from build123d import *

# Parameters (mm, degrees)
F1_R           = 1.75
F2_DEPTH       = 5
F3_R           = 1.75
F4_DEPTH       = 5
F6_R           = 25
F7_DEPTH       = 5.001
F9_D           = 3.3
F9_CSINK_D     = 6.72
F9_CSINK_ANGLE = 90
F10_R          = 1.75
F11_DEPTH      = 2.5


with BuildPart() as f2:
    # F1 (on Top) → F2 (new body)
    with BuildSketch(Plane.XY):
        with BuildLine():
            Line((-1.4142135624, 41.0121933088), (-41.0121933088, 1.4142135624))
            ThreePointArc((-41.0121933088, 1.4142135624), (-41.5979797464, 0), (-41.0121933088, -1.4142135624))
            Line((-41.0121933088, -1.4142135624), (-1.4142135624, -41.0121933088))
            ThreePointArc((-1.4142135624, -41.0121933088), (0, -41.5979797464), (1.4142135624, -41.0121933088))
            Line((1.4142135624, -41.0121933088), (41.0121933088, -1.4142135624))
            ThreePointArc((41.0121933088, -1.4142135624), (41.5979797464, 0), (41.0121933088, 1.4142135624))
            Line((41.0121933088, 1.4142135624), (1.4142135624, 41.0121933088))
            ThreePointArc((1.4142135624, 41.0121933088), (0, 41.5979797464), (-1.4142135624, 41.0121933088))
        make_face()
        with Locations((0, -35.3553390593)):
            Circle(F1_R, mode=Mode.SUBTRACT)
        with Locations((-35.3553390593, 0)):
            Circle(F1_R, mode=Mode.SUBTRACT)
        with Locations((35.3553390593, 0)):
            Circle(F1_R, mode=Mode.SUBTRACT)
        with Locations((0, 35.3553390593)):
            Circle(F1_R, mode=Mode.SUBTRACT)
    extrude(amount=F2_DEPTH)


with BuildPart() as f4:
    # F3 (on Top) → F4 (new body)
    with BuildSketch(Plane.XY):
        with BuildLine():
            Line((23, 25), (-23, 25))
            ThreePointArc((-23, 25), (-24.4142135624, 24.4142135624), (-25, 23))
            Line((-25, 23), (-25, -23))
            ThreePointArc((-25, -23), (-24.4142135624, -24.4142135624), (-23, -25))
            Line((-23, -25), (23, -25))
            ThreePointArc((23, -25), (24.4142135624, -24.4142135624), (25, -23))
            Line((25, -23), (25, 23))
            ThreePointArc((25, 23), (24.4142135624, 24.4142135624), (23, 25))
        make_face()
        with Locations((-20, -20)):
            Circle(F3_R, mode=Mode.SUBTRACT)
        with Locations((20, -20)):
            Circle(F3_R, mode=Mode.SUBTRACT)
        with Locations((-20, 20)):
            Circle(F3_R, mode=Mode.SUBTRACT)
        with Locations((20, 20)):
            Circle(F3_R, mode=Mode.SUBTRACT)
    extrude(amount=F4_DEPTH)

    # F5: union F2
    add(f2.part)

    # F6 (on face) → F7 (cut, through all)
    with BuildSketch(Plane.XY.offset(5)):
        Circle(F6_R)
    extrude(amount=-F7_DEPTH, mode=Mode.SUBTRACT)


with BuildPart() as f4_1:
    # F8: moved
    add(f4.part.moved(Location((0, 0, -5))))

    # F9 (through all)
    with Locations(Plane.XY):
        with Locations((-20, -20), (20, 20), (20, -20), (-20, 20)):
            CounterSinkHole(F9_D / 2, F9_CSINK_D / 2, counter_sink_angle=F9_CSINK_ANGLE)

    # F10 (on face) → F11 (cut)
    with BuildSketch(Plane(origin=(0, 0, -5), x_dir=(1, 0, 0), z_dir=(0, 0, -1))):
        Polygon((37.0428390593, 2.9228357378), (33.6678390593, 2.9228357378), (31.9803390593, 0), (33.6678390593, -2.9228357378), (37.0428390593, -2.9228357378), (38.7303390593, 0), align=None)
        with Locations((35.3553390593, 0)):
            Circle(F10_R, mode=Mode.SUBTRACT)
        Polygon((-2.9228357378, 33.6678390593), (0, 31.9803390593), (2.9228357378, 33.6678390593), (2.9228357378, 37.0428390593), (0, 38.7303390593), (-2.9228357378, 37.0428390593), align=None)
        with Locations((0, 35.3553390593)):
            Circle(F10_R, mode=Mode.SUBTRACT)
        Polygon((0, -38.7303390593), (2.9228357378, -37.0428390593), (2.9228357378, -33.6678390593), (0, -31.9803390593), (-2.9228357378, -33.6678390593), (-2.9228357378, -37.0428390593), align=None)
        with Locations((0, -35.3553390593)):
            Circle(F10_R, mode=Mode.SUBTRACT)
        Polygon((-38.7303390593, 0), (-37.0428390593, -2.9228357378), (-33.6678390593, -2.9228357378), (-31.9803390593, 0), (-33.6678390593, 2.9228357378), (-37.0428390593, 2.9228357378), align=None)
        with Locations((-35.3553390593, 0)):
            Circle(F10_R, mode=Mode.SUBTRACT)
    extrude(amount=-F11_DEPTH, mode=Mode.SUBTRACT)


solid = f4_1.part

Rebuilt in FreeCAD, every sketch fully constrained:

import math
import FreeCAD as App
import Part
import Sketcher
from FreeCAD import Vector
Q = App.Units.Quantity

doc = App.newDocument("Part")
params = doc.addObject("Spreadsheet::Sheet", "Params")
for row, (alias, value) in enumerate([
    ("sketch1_radius", "2 mm"),
    ("sketch1_diameter", "3.5 mm"),
    ("sketch1_length", "56 mm"),
    ("pad1_length", "5 mm"),
    ("sketch2_radius", "2 mm"),
    ("sketch2_diameter", "3.5 mm"),
    ("sketch2_width", "46 mm"),
    ("pad2_length", "5 mm"),
    ("sketch3_diameter", "50 mm"),
    ("sketch4_diameter", "3.3 mm"),
    ("hole_diameter", "3.3 mm"),
    ("hole_csink_diameter", "6.72 mm"),
    ("sketch5_diameter", "3.5 mm"),
    ("pocket2_length", "2.5 mm"),
], start=1):
    params.set(f"A{row}", alias)
    params.set(f"B{row}", "=" + value)
    params.setAlias(f"B{row}", alias)

body = doc.addObject("PartDesign::Body", "Body")

sketch1 = body.newObject("Sketcher::SketchObject", "Sketch")
sketch1.AttachmentSupport = (doc.getObject("XY_Plane"), [""])
sketch1.MapMode = "FlatFace"
sketch1.addGeometry([
    Part.LineSegment(Vector(-1.4, 41, 0), Vector(-41, 1.4, 0)),
    Part.ArcOfCircle(Part.Circle(Vector(-39.6, 0, 0), Vector(0, 0, 1), 2), math.radians(135), math.radians(225)),
    Part.LineSegment(Vector(-41, -1.4, 0), Vector(-1.4, -41, 0)),
    Part.ArcOfCircle(Part.Circle(Vector(0, -39.6, 0), Vector(0, 0, 1), 2), math.radians(-135), math.radians(-45)),
    Part.LineSegment(Vector(1.4, -41, 0), Vector(41, -1.4, 0)),
    Part.ArcOfCircle(Part.Circle(Vector(39.6, 0, 0), Vector(0, 0, 1), 2), math.radians(-45), math.radians(45)),
    Part.LineSegment(Vector(41, 1.4, 0), Vector(1.4, 41, 0)),
    Part.ArcOfCircle(Part.Circle(Vector(0, 39.6, 0), Vector(0, 0, 1), 2), math.radians(45), math.radians(135)),
    Part.Circle(Vector(0, -35.4, 0), Vector(0, 0, 1), 1.8),
    Part.Circle(Vector(-35.4, 0, 0), Vector(0, 0, 1), 1.8),
    Part.Circle(Vector(35.4, 0, 0), Vector(0, 0, 1), 1.8),
    Part.Circle(Vector(0, 35.4, 0), Vector(0, 0, 1), 1.8),
], False)
sketch1.addConstraint([
    Sketcher.Constraint("Tangent", 0, 2, 1, 1),
    Sketcher.Constraint("Tangent", 1, 2, 2, 1),
    Sketcher.Constraint("Tangent", 2, 2, 3, 1),
    Sketcher.Constraint("Tangent", 3, 2, 4, 1),
    Sketcher.Constraint("Tangent", 4, 2, 5, 1),
    Sketcher.Constraint("Tangent", 5, 2, 6, 1),
    Sketcher.Constraint("Tangent", 6, 2, 7, 1),
    Sketcher.Constraint("Tangent", 7, 2, 0, 1),
    Sketcher.Constraint("Equal", 1, 3),
    Sketcher.Constraint("Equal", 3, 5),
    Sketcher.Constraint("Equal", 5, 7),
    Sketcher.Constraint("Equal", 8, 9),
    Sketcher.Constraint("Equal", 9, 10),
    Sketcher.Constraint("Equal", 10, 11),
    Sketcher.Constraint("Symmetric", 1, 3, 5, 3, -1, 1),
    Sketcher.Constraint("Symmetric", 3, 3, 7, 3, -1, 1),
    Sketcher.Constraint("Symmetric", 9, 3, 10, 3, -1, 1),
    Sketcher.Constraint("Symmetric", 8, 3, 11, 3, -1, 1),
    Sketcher.Constraint("Symmetric", 2, 2, 3, 2, -2),
    Sketcher.Constraint("PointOnObject", 8, 3, -2),
    Sketcher.Constraint("PointOnObject", 9, 3, -1),
    Sketcher.Constraint("Perpendicular", 0, 2),
    Sketcher.Constraint("Radius", 1, 2.0),
    Sketcher.Constraint("Diameter", 8, 3.5),
    Sketcher.Constraint("Distance", 0, 56.0),
    Sketcher.Constraint("DistanceY", 8, 3, -1, 1, 35.355339),
    Sketcher.Constraint("DistanceX", 9, 3, -1, 1, 35.355339),
])
sketch1.setExpression("Constraints[22]", "Params.sketch1_radius")
sketch1.setExpression("Constraints[23]", "Params.sketch1_diameter")
sketch1.setExpression("Constraints[24]", "Params.sketch1_length")
pad1 = body.newObject("PartDesign::Pad", "Pad")
pad1.Profile = sketch1
pad1.setExpression("Length", "Params.pad1_length")
body2 = doc.addObject("PartDesign::Body", "Body001")

sketch2 = body2.newObject("Sketcher::SketchObject", "Sketch001")
sketch2.AttachmentSupport = (doc.getObject("XY_Plane001"), [""])
sketch2.MapMode = "FlatFace"
sketch2.addGeometry([
    Part.LineSegment(Vector(23, 25, 0), Vector(-23, 25, 0)),
    Part.ArcOfCircle(Part.Circle(Vector(-23, 23, 0), Vector(0, 0, 1), 2), math.radians(90), math.radians(180)),
    Part.LineSegment(Vector(-25, 23, 0), Vector(-25, -23, 0)),
    Part.ArcOfCircle(Part.Circle(Vector(-23, -23, 0), Vector(0, 0, 1), 2), math.radians(180), math.radians(270)),
    Part.LineSegment(Vector(-23, -25, 0), Vector(23, -25, 0)),
    Part.ArcOfCircle(Part.Circle(Vector(23, -23, 0), Vector(0, 0, 1), 2), math.radians(-90), math.radians(0)),
    Part.LineSegment(Vector(25, -23, 0), Vector(25, 23, 0)),
    Part.ArcOfCircle(Part.Circle(Vector(23, 23, 0), Vector(0, 0, 1), 2), math.radians(0), math.radians(90)),
    Part.Circle(Vector(-20, -20, 0), Vector(0, 0, 1), 1.8),
    Part.Circle(Vector(20, -20, 0), Vector(0, 0, 1), 1.8),
    Part.Circle(Vector(-20, 20, 0), Vector(0, 0, 1), 1.8),
    Part.Circle(Vector(20, 20, 0), Vector(0, 0, 1), 1.8),
], False)
sketch2.addConstraint([
    Sketcher.Constraint("Tangent", 0, 2, 1, 1),
    Sketcher.Constraint("Tangent", 1, 2, 2, 1),
    Sketcher.Constraint("Tangent", 2, 2, 3, 1),
    Sketcher.Constraint("Tangent", 3, 2, 4, 1),
    Sketcher.Constraint("Tangent", 4, 2, 5, 1),
    Sketcher.Constraint("Tangent", 5, 2, 6, 1),
    Sketcher.Constraint("Tangent", 6, 2, 7, 1),
    Sketcher.Constraint("Tangent", 7, 2, 0, 1),
    Sketcher.Constraint("Horizontal", 0),
    Sketcher.Constraint("Vertical", 2),
    Sketcher.Constraint("Horizontal", 4),
    Sketcher.Constraint("Vertical", 6),
    Sketcher.Constraint("Equal", 1, 3),
    Sketcher.Constraint("Equal", 3, 5),
    Sketcher.Constraint("Equal", 5, 7),
    Sketcher.Constraint("Equal", 8, 9),
    Sketcher.Constraint("Equal", 9, 10),
    Sketcher.Constraint("Equal", 10, 11),
    Sketcher.Constraint("Symmetric", 1, 3, 5, 3, -1, 1),
    Sketcher.Constraint("Symmetric", 9, 3, 10, 3, -1, 1),
    Sketcher.Constraint("Symmetric", 8, 3, 11, 3, -1, 1),
    Sketcher.Constraint("Symmetric", 8, 3, 9, 3, -2),
    Sketcher.Constraint("Equal", 4, 2),
    Sketcher.Constraint("Radius", 1, 2.0),
    Sketcher.Constraint("Diameter", 8, 3.5),
    Sketcher.Constraint("DistanceX", 0, 2, 0, 1, 46.0),
    Sketcher.Constraint("DistanceX", 8, 3, -1, 1, 20.0),
    Sketcher.Constraint("DistanceY", 8, 3, -1, 1, 20.0),
])
sketch2.setExpression("Constraints[23]", "Params.sketch2_radius")
sketch2.setExpression("Constraints[24]", "Params.sketch2_diameter")
sketch2.setExpression("Constraints[25]", "Params.sketch2_width")
pad2 = body2.newObject("PartDesign::Pad", "Pad001")
pad2.Profile = sketch2
pad2.setExpression("Length", "Params.pad2_length")
doc.recompute()

boolean = body2.newObject("PartDesign::Boolean", "Boolean")
boolean.Type = "Fuse"
boolean.addObjects([body])

sketch3 = body2.newObject("Sketcher::SketchObject", "Sketch002")
sketch3.AttachmentSupport = (doc.getObject("XY_Plane001"), [""])
sketch3.MapMode = "FlatFace"
sketch3.AttachmentOffset = App.Placement(Vector(0, 0, 5), App.Rotation())
sketch3.addGeometry(Part.Circle(Vector(0, 0, 0), Vector(0, 0, 1), 25), False)
sketch3.addConstraint([
    Sketcher.Constraint("Coincident", 0, 3, -1, 1),
    Sketcher.Constraint("Diameter", 0, 50.0),
])
sketch3.setExpression("Constraints[1]", "Params.sketch3_diameter")
pocket1 = body2.newObject("PartDesign::Pocket", "Pocket")
pocket1.Profile = sketch3
pocket1.Type = "ThroughAll"
body3 = doc.addObject("PartDesign::Body", "Body002")
doc.recompute()

body2.Placement = App.Placement(Vector(0, 0, -5), App.Rotation(Vector(0, 0, 1), 0))
boolean2 = body3.newObject("PartDesign::Boolean", "Boolean001")
boolean2.Type = "Fuse"
boolean2.addObjects([body2])

sketch4 = body3.newObject("Sketcher::SketchObject", "Sketch003")
sketch4.AttachmentSupport = (doc.getObject("XY_Plane002"), [""])
sketch4.MapMode = "FlatFace"
sketch4.addGeometry([
    Part.Circle(Vector(-20, -20, 0), Vector(0, 0, 1), 1.6),
    Part.Circle(Vector(20, 20, 0), Vector(0, 0, 1), 1.6),
    Part.Circle(Vector(20, -20, 0), Vector(0, 0, 1), 1.6),
    Part.Circle(Vector(-20, 20, 0), Vector(0, 0, 1), 1.6),
], False)
sketch4.addConstraint([
    Sketcher.Constraint("Equal", 0, 1),
    Sketcher.Constraint("Equal", 1, 2),
    Sketcher.Constraint("Equal", 2, 3),
    Sketcher.Constraint("Symmetric", 0, 3, 1, 3, -1, 1),
    Sketcher.Constraint("Symmetric", 2, 3, 3, 3, -1, 1),
    Sketcher.Constraint("Symmetric", 0, 3, 2, 3, -2),
    Sketcher.Constraint("Diameter", 0, 3.3),
    Sketcher.Constraint("DistanceX", 0, 3, -1, 1, 20.0),
    Sketcher.Constraint("DistanceY", 0, 3, -1, 1, 20.0),
])
sketch4.setExpression("Constraints[6]", "Params.sketch4_diameter")
doc.recompute()
hole = body3.newObject("PartDesign::Hole", "Hole")
hole.Profile = sketch4
hole.ThreadType = "None"
hole.setExpression("Diameter", "Params.hole_diameter")
hole.DepthType = "ThroughAll"
hole.HoleCutType = "Countersink"
hole.setExpression("HoleCutDiameter", "Params.hole_csink_diameter")
hole.HoleCutCountersinkAngle = 90

sketch5 = body3.newObject("Sketcher::SketchObject", "Sketch004")
sketch5.AttachmentSupport = (doc.getObject("XY_Plane002"), [""])
sketch5.MapMode = "FlatFace"
sketch5.AttachmentOffset = App.Placement(Vector(0, 0, -5), App.Rotation())
sketch5.addGeometry([
    Part.LineSegment(Vector(37, -2.9, 0), Vector(33.7, -2.9, 0)),
    Part.LineSegment(Vector(33.7, -2.9, 0), Vector(32, 0, 0)),
    Part.LineSegment(Vector(32, 0, 0), Vector(33.7, 2.9, 0)),
    Part.LineSegment(Vector(33.7, 2.9, 0), Vector(37, 2.9, 0)),
    Part.LineSegment(Vector(37, 2.9, 0), Vector(38.7, 0, 0)),
    Part.LineSegment(Vector(38.7, 0, 0), Vector(37, -2.9, 0)),
    Part.Circle(Vector(35.4, 0, 0), Vector(0, 0, 1), 1.8),
    Part.LineSegment(Vector(-2.9, -33.7, 0), Vector(0, -32, 0)),
    Part.LineSegment(Vector(0, -32, 0), Vector(2.9, -33.7, 0)),
    Part.LineSegment(Vector(2.9, -33.7, 0), Vector(2.9, -37, 0)),
    Part.LineSegment(Vector(2.9, -37, 0), Vector(0, -38.7, 0)),
    Part.LineSegment(Vector(0, -38.7, 0), Vector(-2.9, -37, 0)),
    Part.LineSegment(Vector(-2.9, -37, 0), Vector(-2.9, -33.7, 0)),
    Part.Circle(Vector(0, -35.4, 0), Vector(0, 0, 1), 1.8),
    Part.LineSegment(Vector(0, 38.7, 0), Vector(2.9, 37, 0)),
    Part.LineSegment(Vector(2.9, 37, 0), Vector(2.9, 33.7, 0)),
    Part.LineSegment(Vector(2.9, 33.7, 0), Vector(0, 32, 0)),
    Part.LineSegment(Vector(0, 32, 0), Vector(-2.9, 33.7, 0)),
    Part.LineSegment(Vector(-2.9, 33.7, 0), Vector(-2.9, 37, 0)),
    Part.LineSegment(Vector(-2.9, 37, 0), Vector(0, 38.7, 0)),
    Part.Circle(Vector(0, 35.4, 0), Vector(0, 0, 1), 1.8),
    Part.LineSegment(Vector(-38.7, 0, 0), Vector(-37, 2.9, 0)),
    Part.LineSegment(Vector(-37, 2.9, 0), Vector(-33.7, 2.9, 0)),
    Part.LineSegment(Vector(-33.7, 2.9, 0), Vector(-32, 0, 0)),
    Part.LineSegment(Vector(-32, 0, 0), Vector(-33.7, -2.9, 0)),
    Part.LineSegment(Vector(-33.7, -2.9, 0), Vector(-37, -2.9, 0)),
    Part.LineSegment(Vector(-37, -2.9, 0), Vector(-38.7, 0, 0)),
    Part.Circle(Vector(-35.4, 0, 0), Vector(0, 0, 1), 1.8),
], False)
sketch5.addConstraint([
    Sketcher.Constraint("Coincident", 0, 2, 1, 1),
    Sketcher.Constraint("Coincident", 1, 2, 2, 1),
    Sketcher.Constraint("Coincident", 2, 2, 3, 1),
    Sketcher.Constraint("Coincident", 3, 2, 4, 1),
    Sketcher.Constraint("Coincident", 4, 2, 5, 1),
    Sketcher.Constraint("Coincident", 5, 2, 0, 1),
    Sketcher.Constraint("Coincident", 7, 2, 8, 1),
    Sketcher.Constraint("Coincident", 8, 2, 9, 1),
    Sketcher.Constraint("Coincident", 9, 2, 10, 1),
    Sketcher.Constraint("Coincident", 10, 2, 11, 1),
    Sketcher.Constraint("Coincident", 11, 2, 12, 1),
    Sketcher.Constraint("Coincident", 12, 2, 7, 1),
    Sketcher.Constraint("Coincident", 14, 2, 15, 1),
    Sketcher.Constraint("Coincident", 15, 2, 16, 1),
    Sketcher.Constraint("Coincident", 16, 2, 17, 1),
    Sketcher.Constraint("Coincident", 17, 2, 18, 1),
    Sketcher.Constraint("Coincident", 18, 2, 19, 1),
    Sketcher.Constraint("Coincident", 19, 2, 14, 1),
    Sketcher.Constraint("Coincident", 21, 2, 22, 1),
    Sketcher.Constraint("Coincident", 22, 2, 23, 1),
    Sketcher.Constraint("Coincident", 23, 2, 24, 1),
    Sketcher.Constraint("Coincident", 24, 2, 25, 1),
    Sketcher.Constraint("Coincident", 25, 2, 26, 1),
    Sketcher.Constraint("Coincident", 26, 2, 21, 1),
    Sketcher.Constraint("Horizontal", 0),
    Sketcher.Constraint("Horizontal", 3),
    Sketcher.Constraint("Vertical", 9),
    Sketcher.Constraint("Vertical", 12),
    Sketcher.Constraint("Vertical", 15),
    Sketcher.Constraint("Vertical", 18),
    Sketcher.Constraint("Horizontal", 22),
    Sketcher.Constraint("Horizontal", 25),
    Sketcher.Constraint("Equal", 6, 13),
    Sketcher.Constraint("Equal", 13, 20),
    Sketcher.Constraint("Equal", 20, 27),
    Sketcher.Constraint("Symmetric", 13, 3, 20, 3, -1, 1),
    Sketcher.Constraint("Symmetric", 6, 3, 27, 3, -1, 1),
    Sketcher.Constraint("Symmetric", 11, 2, 14, 2, -1, 1),
    Sketcher.Constraint("Symmetric", 7, 2, 16, 2, -1, 1),
    Sketcher.Constraint("Symmetric", 8, 2, 17, 2, -1, 1),
    Sketcher.Constraint("Symmetric", 10, 2, 19, 2, -1, 1),
    Sketcher.Constraint("Symmetric", 5, 2, 21, 2, -1, 1),
    Sketcher.Constraint("Symmetric", 1, 2, 23, 2, -1, 1),
    Sketcher.Constraint("Symmetric", 2, 2, 24, 2, -1, 1),
    Sketcher.Constraint("Symmetric", 4, 2, 26, 2, -1, 1),
    Sketcher.Constraint("Symmetric", 9, 2, 11, 2, -2),
    Sketcher.Constraint("Symmetric", 3, 2, 21, 2, -2),
    Sketcher.Constraint("PointOnObject", 6, 3, -1),
    Sketcher.Constraint("PointOnObject", 13, 3, -2),
    Sketcher.Constraint("PointOnObject", 1, 2, -1),
    Sketcher.Constraint("PointOnObject", 4, 2, -1),
    Sketcher.Constraint("PointOnObject", 7, 2, -2),
    Sketcher.Constraint("PointOnObject", 10, 2, -2),
    Sketcher.Constraint("Parallel", 1, 4),
    Sketcher.Constraint("Parallel", 2, 5),
    Sketcher.Constraint("Perpendicular", 4, 7),
    Sketcher.Constraint("Perpendicular", 5, 8),
    Sketcher.Constraint("Parallel", 7, 10),
    Sketcher.Constraint("Parallel", 10, 16),
    Sketcher.Constraint("Parallel", 16, 19),
    Sketcher.Constraint("Perpendicular", 19, 23),
    Sketcher.Constraint("Parallel", 23, 26),
    Sketcher.Constraint("Equal", 25, 9),
    Sketcher.Constraint("Equal", 5, 7),
    Sketcher.Constraint("Diameter", 6, 3.5),
    Sketcher.Constraint("Angle", 1, Q("120 deg")),
    Sketcher.Constraint("DistanceX", 0, 2, 0, 1, 3.375),
    Sketcher.Constraint("DistanceX", 1, 2, 4, 2, 6.75),
    Sketcher.Constraint("DistanceX", 1, 2, 6, 3, 3.375),
    Sketcher.Constraint("DistanceY", 13, 3, 7, 2, 3.375),
    Sketcher.Constraint("DistanceX", -1, 1, 6, 3, 35.355339),
    Sketcher.Constraint("DistanceY", 13, 3, -1, 1, 35.355339),
])
sketch5.setExpression("Constraints[64]", "Params.sketch5_diameter")
pocket2 = body3.newObject("PartDesign::Pocket", "Pocket001")
pocket2.Profile = sketch5
pocket2.setExpression("Length", "Params.pocket2_length")
pocket2.Reversed = True

doc.recompute()
